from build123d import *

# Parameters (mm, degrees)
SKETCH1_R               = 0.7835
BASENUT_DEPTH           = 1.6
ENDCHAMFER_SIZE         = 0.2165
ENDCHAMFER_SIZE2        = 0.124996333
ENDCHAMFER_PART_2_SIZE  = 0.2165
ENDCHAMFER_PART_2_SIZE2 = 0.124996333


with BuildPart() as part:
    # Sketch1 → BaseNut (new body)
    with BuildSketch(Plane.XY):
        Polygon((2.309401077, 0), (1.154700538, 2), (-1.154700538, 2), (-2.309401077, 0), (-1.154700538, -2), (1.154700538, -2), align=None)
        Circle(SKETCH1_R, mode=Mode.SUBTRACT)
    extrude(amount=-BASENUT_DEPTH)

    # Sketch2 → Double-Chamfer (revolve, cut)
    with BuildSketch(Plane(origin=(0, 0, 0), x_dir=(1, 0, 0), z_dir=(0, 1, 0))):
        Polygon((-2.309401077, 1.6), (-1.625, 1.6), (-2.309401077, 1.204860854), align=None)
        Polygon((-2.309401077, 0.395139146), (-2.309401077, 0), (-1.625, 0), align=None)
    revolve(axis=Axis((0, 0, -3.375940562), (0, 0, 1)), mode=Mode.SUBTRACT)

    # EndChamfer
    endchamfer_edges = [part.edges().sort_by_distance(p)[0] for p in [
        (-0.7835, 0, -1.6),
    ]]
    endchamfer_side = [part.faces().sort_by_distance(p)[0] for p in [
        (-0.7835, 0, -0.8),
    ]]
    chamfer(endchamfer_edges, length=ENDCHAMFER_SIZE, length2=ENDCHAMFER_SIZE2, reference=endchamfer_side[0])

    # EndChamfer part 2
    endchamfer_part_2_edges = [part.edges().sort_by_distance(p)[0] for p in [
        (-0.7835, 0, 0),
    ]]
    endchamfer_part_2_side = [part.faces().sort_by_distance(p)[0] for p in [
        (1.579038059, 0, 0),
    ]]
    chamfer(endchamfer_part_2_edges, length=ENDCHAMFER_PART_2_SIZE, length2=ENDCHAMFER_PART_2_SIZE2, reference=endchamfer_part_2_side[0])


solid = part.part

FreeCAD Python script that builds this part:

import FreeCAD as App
import Part
import Sketcher
Q = App.Units.Quantity


def edges_at(feature, points):
    """Names of the edges that pass closest to the given points."""
    edges = feature.Shape.Edges
    near = lambda p: min(range(len(edges)), key=lambda i: edges[i].distToShape(Part.Vertex(*p))[0])
    return sorted({f"Edge{near(p) + 1}" for p in points})


def add_polygon(sketch, points):
    """Adds a closed chain of lines whose ends are joined by coincident constraints."""
    first, n = sketch.GeometryCount, len(points)
    for a, b in zip(points, points[1:] + points[:1]):
        sketch.addGeometry(Part.LineSegment(App.Vector(*a, 0), App.Vector(*b, 0)), False)
    for i in range(n):
        sketch.addConstraint(Sketcher.Constraint("Coincident", first + i, 2, first + (i + 1) % n, 1))

doc = App.newDocument("Part")
body = doc.addObject("PartDesign::Body", "Body")

sketch1 = doc.addObject("Sketcher::SketchObject", "Sketch")
body.addObject(sketch1)
sketch1.AttachmentSupport = (doc.XY_Plane, [""])
sketch1.MapMode = "FlatFace"
add_polygon(sketch1, [(2.3, 0), (1.2, 2), (-1.2, 2), (-2.3, 0), (-1.2, -2), (1.2, -2)])
sketch1.addGeometry(Part.Circle(App.Vector(0, 0, 0), App.Vector(0, 0, 1), 0.8), False)
sketch1.addConstraint(Sketcher.Constraint("Horizontal", 1))
sketch1.addConstraint(Sketcher.Constraint("Horizontal", 4))
sketch1.addConstraint(Sketcher.Constraint("Coincident", 6, 3, -1, 1))
sketch1.addConstraint(Sketcher.Constraint("Symmetric", 0, 2, 3, 2, -1, 1))
sketch1.addConstraint(Sketcher.Constraint("Symmetric", 2, 2, 5, 2, -1, 1))
sketch1.addConstraint(Sketcher.Constraint("PointOnObject", 2, 2, -1))
sketch1.addConstraint(Sketcher.Constraint("Parallel", 2, 5))
sketch1.addConstraint(Sketcher.Constraint("Vertical", 1, 2, 3, 2))
sketch1.addConstraint(Sketcher.Constraint("Angle", 0, Q("120 deg")))
sketch1.addConstraint(Sketcher.Constraint("Diameter", 6, 1.567))
sketch1.addConstraint(Sketcher.Constraint("DistanceY", -1, 1, 0, 2, 2.0))
sketch1.addConstraint(Sketcher.Constraint("DistanceX", 1, 2, 1, 1, 2.309401))
pad1 = doc.addObject("PartDesign::Pad", "Pad")
body.addObject(pad1)
pad1.Profile = sketch1
pad1.Length = 1.6
pad1.Reversed = True

sketch2 = doc.addObject("Sketcher::SketchObject", "Sketch001")
body.addObject(sketch2)
sketch2.AttachmentSupport = (doc.XZ_Plane, [""])
sketch2.MapMode = "FlatFace"
add_polygon(sketch2, [(-1.62, -1.6), (-2.31, -1.6), (-2.31, -1.2)])
add_polygon(sketch2, [(-2.31, -0.4), (-2.31, 0), (-1.62, 0)])
sketch2.addConstraint(Sketcher.Constraint("Horizontal", 0))
sketch2.addConstraint(Sketcher.Constraint("Vertical", 1))
sketch2.addConstraint(Sketcher.Constraint("Vertical", 3))
sketch2.addConstraint(Sketcher.Constraint("Horizontal", 4))
sketch2.addConstraint(Sketcher.Constraint("PointOnObject", 3, 2, -1))
sketch2.addConstraint(Sketcher.Constraint("Vertical", 1, 2, 3, 2))
sketch2.addConstraint(Sketcher.Constraint("Vertical", 2, 2, 4, 2))
sketch2.addConstraint(Sketcher.Constraint("Equal", 1, 3))
sketch2.addConstraint(Sketcher.Constraint("Angle", 2, Q("-30 deg")))
sketch2.addConstraint(Sketcher.Constraint("DistanceY", 0, 2, -1, 1, 1.6))
sketch2.addConstraint(Sketcher.Constraint("DistanceX", 0, 2, 0, 1, 0.684401))
sketch2.addConstraint(Sketcher.Constraint("DistanceX", 2, 2, -1, 1, 1.625))
groove = doc.addObject("PartDesign::Groove", "Groove")
body.addObject(groove)
groove.Profile = sketch2
groove.ReferenceAxis = (sketch2, ["V_Axis"])
groove.Angle = 360
doc.recompute()

chamfer = doc.addObject("PartDesign::Chamfer", "Chamfer")
body.addObject(chamfer)
chamfer.Base = (groove, edges_at(groove, [(-0.783, 0, -1.6)]))
chamfer.ChamferType = "Two distances"
chamfer.Size = 0.2165
chamfer.Size2 = 0.124996
chamfer.FlipDirection = True
doc.recompute()

chamfer2 = doc.addObject("PartDesign::Chamfer", "Chamfer001")
body.addObject(chamfer2)
chamfer2.Base = (chamfer, edges_at(chamfer, [(-0.783, 0, 0)]))
chamfer2.ChamferType = "Two distances"
chamfer2.Size = 0.2165
chamfer2.Size2 = 0.124996
chamfer2.FlipDirection = True

doc.recompute()
